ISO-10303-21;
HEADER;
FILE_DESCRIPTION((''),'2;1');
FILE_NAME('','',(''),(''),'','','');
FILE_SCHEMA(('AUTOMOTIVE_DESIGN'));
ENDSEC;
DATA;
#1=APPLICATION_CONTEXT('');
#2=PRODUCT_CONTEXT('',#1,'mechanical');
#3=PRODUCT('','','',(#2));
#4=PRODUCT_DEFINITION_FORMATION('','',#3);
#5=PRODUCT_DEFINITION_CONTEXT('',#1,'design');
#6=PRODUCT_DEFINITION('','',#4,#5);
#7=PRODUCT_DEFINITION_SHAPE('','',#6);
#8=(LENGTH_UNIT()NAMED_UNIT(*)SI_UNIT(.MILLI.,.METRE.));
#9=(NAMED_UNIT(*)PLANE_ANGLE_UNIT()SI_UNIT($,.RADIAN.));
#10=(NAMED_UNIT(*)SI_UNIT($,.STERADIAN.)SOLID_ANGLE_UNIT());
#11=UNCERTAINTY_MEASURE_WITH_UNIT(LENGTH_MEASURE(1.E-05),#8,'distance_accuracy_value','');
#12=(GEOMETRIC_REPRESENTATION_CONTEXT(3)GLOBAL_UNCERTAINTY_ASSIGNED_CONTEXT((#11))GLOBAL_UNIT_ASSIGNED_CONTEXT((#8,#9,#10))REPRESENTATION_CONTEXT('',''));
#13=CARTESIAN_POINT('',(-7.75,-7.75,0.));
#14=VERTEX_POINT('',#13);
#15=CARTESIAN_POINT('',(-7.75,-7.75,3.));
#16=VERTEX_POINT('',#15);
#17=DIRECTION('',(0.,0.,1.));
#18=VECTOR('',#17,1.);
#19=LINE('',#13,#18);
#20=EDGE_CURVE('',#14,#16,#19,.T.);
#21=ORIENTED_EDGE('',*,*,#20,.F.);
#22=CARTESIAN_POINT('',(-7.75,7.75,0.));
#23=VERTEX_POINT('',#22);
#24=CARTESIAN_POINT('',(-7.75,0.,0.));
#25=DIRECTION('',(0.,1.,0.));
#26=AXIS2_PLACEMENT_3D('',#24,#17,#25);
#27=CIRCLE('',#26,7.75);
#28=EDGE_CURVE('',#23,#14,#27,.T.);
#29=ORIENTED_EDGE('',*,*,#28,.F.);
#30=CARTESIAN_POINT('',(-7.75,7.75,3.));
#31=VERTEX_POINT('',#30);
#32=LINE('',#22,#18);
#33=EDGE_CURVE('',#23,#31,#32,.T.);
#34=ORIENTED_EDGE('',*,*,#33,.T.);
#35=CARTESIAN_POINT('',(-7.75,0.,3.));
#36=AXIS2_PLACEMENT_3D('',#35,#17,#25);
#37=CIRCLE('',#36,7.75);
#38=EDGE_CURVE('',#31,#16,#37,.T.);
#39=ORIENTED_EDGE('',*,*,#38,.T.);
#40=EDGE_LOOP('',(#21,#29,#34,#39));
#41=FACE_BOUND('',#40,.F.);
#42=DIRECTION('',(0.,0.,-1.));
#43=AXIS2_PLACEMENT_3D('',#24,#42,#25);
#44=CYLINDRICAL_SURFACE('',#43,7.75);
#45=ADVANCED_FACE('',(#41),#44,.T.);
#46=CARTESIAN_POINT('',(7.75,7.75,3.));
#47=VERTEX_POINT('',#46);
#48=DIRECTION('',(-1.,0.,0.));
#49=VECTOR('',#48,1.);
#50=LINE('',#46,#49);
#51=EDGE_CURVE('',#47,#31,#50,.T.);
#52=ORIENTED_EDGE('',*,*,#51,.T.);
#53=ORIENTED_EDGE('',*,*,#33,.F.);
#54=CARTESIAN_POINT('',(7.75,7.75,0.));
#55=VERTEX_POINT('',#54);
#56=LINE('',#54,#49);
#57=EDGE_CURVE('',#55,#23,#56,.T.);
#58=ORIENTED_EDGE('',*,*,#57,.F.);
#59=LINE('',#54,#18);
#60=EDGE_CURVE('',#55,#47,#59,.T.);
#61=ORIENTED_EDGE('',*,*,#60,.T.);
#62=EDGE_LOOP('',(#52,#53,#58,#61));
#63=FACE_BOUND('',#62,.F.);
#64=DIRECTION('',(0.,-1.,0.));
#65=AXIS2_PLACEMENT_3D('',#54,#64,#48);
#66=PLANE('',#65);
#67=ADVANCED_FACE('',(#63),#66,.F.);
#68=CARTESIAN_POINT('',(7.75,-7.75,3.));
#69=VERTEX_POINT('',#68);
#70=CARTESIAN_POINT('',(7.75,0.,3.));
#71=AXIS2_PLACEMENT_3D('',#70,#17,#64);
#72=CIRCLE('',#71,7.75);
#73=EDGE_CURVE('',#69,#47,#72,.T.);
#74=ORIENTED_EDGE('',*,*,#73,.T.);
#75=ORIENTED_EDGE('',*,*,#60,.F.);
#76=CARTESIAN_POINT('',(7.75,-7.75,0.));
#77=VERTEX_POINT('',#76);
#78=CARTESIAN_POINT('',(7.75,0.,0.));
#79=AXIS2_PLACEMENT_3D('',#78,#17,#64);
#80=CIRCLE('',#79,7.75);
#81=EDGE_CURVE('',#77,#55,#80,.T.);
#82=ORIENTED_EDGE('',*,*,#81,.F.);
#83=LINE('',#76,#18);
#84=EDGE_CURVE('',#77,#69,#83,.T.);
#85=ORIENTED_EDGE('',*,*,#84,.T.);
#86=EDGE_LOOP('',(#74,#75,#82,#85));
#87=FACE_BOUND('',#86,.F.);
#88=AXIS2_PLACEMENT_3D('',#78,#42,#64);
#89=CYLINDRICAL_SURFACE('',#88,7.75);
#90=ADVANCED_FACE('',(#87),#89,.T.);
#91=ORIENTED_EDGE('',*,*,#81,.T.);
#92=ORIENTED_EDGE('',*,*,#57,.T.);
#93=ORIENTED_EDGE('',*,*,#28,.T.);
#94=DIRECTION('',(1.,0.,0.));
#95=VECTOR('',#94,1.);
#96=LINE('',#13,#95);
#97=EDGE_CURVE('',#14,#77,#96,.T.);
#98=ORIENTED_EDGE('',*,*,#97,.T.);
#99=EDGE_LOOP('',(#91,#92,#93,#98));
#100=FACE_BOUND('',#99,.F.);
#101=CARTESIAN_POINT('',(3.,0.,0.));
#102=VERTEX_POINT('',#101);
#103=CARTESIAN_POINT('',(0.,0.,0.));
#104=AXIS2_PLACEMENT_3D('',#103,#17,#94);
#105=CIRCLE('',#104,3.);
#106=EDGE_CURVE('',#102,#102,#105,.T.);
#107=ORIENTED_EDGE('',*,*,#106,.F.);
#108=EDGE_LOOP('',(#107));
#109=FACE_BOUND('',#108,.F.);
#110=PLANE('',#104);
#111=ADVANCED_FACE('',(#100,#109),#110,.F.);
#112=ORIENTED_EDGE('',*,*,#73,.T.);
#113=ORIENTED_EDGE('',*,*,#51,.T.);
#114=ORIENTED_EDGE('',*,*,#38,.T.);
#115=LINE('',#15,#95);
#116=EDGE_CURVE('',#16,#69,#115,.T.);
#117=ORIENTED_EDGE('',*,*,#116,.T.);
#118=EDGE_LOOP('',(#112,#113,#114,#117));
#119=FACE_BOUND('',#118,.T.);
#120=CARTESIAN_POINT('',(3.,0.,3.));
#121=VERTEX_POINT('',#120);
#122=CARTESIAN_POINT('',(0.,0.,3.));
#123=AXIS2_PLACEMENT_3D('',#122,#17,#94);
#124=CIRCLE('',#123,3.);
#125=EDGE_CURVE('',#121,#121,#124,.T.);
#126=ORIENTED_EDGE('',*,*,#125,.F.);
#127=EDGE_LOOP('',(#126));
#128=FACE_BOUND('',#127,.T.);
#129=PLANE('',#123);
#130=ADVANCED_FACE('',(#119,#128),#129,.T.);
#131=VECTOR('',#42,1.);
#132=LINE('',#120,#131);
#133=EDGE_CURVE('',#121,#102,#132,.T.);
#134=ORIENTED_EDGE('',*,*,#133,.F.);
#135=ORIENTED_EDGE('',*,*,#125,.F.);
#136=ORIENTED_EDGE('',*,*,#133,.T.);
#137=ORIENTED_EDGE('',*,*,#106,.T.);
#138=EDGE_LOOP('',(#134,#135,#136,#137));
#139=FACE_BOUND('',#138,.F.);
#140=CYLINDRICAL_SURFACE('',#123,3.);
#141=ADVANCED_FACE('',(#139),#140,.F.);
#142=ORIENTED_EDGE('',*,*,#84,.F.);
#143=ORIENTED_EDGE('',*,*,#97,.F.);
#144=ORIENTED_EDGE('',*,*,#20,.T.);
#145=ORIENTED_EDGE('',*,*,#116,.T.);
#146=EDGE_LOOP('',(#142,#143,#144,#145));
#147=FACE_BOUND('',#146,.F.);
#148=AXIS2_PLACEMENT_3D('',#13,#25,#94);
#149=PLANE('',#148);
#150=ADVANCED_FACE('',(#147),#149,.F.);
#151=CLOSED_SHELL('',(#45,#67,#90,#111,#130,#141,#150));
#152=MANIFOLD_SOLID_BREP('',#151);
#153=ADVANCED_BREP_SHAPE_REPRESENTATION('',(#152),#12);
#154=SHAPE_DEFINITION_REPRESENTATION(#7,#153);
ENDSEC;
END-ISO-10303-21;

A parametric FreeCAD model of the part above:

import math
import FreeCAD as App
import Part
import Sketcher
Q = App.Units.Quantity

doc = App.newDocument("Part")
params = doc.addObject("Spreadsheet::Sheet", "Params")
for row, (alias, value) in enumerate([
    ("sketch1_radius", "7.75 mm"),
    ("sketch1_width", "15.5 mm"),
    ("pad1_length", "3 mm"),
    ("sketch2_diameter", "6 mm"),
    ("pocket1_length", "25 mm"),
], start=1):
    params.set(f"A{row}", alias)
    params.set(f"B{row}", "=" + value)
    params.setAlias(f"B{row}", alias)

body = doc.addObject("PartDesign::Body", "Body")

# Sketch on XY plane
sketch1 = body.newObject("Sketcher::SketchObject", "Sketch")
sketch1.AttachmentSupport = (doc.getObject("XY_Plane"), [""])
sketch1.MapMode = "FlatFace"
sketch1.addGeometry(Part.LineSegment(App.Vector(8, 8, 0), App.Vector(-8, 8, 0)), False)
sketch1.addGeometry(Part.ArcOfCircle(Part.Circle(App.Vector(-8, 0, 0), App.Vector(0, 0, 1), 8), math.radians(90), math.radians(270)), False)
sketch1.addGeometry(Part.LineSegment(App.Vector(-8, -8, 0), App.Vector(8, -8, 0)), False)
sketch1.addGeometry(Part.ArcOfCircle(Part.Circle(App.Vector(8, 0, 0), App.Vector(0, 0, 1), 8), math.radians(-90), math.radians(90)), False)
sketch1.addConstraint(Sketcher.Constraint("Tangent", 0, 2, 1, 1))
sketch1.addConstraint(Sketcher.Constraint("Tangent", 1, 2, 2, 1))
sketch1.addConstraint(Sketcher.Constraint("Tangent", 2, 2, 3, 1))
sketch1.addConstraint(Sketcher.Constraint("Tangent", 3, 2, 0, 1))
sketch1.addConstraint(Sketcher.Constraint("Horizontal", 0))
sketch1.addConstraint(Sketcher.Constraint("Horizontal", 2))
sketch1.addConstraint(Sketcher.Constraint("Symmetric", 1, 3, 3, 3, -1, 1))
sketch1.addConstraint(Sketcher.Constraint("Radius", 1, Q("7.75 mm")))
sketch1.addConstraint(Sketcher.Constraint("DistanceX", 0, 2, 0, 1, Q("15.5 mm")))
sketch1.setExpression("Constraints[7]", "Params.sketch1_radius")
sketch1.setExpression("Constraints[8]", "Params.sketch1_width")
pad1 = body.newObject("PartDesign::Pad", "Pad")
pad1.Profile = sketch1
pad1.setExpression("Length", "Params.pad1_length")

# Sketch on XY plane
sketch2 = body.newObject("Sketcher::SketchObject", "Sketch001")
sketch2.AttachmentSupport = (doc.getObject("XY_Plane"), [""])
sketch2.MapMode = "FlatFace"
sketch2.AttachmentOffset = App.Placement(App.Vector(0, 0, 3), App.Rotation())
sketch2.addGeometry(Part.Circle(App.Vector(0, 0, 0), App.Vector(0, 0, 1), 3), False)
sketch2.addConstraint(Sketcher.Constraint("Coincident", 0, 3, -1, 1))
sketch2.addConstraint(Sketcher.Constraint("Diameter", 0, Q("6 mm")))
sketch2.setExpression("Constraints[1]", "Params.sketch2_diameter")
pocket1 = body.newObject("PartDesign::Pocket", "Pocket")
pocket1.Profile = sketch2
pocket1.setExpression("Length", "Params.pocket1_length")

doc.recompute()
